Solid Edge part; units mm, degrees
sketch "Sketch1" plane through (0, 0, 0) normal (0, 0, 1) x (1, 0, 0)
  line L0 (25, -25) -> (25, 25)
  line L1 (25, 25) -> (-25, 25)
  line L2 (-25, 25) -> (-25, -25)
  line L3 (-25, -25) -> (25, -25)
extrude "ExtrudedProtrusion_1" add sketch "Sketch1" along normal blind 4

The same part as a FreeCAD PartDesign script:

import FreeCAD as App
import Part
import Sketcher
from FreeCAD import Vector
Q = App.Units.Quantity

doc = App.newDocument("Part")
params = doc.addObject("Spreadsheet::Sheet", "Params")
for row, (alias, value) in enumerate([
    ("sketch1_width", "50 mm"),
    ("pad1_length", "4 mm"),
], start=1):
    params.set(f"A{row}", alias)
    params.set(f"B{row}", "=" + value)
    params.setAlias(f"B{row}", alias)

body = doc.addObject("PartDesign::Body", "Body")

# Sketch on XY plane
sketch1 = body.newObject("Sketcher::SketchObject", "Sketch")
sketch1.AttachmentSupport = (doc.getObject("XY_Plane"), [""])
sketch1.MapMode = "FlatFace"
sketch1.addGeometry([
    Part.LineSegment(Vector(-25, -25, 0), Vector(25, -25, 0)),
    Part.LineSegment(Vector(25, -25, 0), Vector(25, 25, 0)),
    Part.LineSegment(Vector(25, 25, 0), Vector(-25, 25, 0)),
    Part.LineSegment(Vector(-25, 25, 0), Vector(-25, -25, 0)),
], False)
sketch1.addConstraint([
    Sketcher.Constraint("Coincident", 0, 2, 1, 1),
    Sketcher.Constraint("Coincident", 1, 2, 2, 1),
    Sketcher.Constraint("Coincident", 2, 2, 3, 1),
    Sketcher.Constraint("Coincident", 3, 2, 0, 1),
    Sketcher.Constraint("Horizontal", 0),
    Sketcher.Constraint("Vertical", 1),
    Sketcher.Constraint("Horizontal", 2),
    Sketcher.Constraint("Vertical", 3),
    Sketcher.Constraint("Symmetric", 0, 2, 2, 2, -1, 1),
    Sketcher.Constraint("Equal", 2, 1),
    Sketcher.Constraint("DistanceX", 0, 1, 0, 2, Q("50 mm")),
])
sketch1.setExpression("Constraints[10]", "Params.sketch1_width")
pad1 = body.newObject("PartDesign::Pad", "Pad")
pad1.Profile = sketch1
pad1.setExpression("Length", "Params.pad1_length")

doc.recompute()
